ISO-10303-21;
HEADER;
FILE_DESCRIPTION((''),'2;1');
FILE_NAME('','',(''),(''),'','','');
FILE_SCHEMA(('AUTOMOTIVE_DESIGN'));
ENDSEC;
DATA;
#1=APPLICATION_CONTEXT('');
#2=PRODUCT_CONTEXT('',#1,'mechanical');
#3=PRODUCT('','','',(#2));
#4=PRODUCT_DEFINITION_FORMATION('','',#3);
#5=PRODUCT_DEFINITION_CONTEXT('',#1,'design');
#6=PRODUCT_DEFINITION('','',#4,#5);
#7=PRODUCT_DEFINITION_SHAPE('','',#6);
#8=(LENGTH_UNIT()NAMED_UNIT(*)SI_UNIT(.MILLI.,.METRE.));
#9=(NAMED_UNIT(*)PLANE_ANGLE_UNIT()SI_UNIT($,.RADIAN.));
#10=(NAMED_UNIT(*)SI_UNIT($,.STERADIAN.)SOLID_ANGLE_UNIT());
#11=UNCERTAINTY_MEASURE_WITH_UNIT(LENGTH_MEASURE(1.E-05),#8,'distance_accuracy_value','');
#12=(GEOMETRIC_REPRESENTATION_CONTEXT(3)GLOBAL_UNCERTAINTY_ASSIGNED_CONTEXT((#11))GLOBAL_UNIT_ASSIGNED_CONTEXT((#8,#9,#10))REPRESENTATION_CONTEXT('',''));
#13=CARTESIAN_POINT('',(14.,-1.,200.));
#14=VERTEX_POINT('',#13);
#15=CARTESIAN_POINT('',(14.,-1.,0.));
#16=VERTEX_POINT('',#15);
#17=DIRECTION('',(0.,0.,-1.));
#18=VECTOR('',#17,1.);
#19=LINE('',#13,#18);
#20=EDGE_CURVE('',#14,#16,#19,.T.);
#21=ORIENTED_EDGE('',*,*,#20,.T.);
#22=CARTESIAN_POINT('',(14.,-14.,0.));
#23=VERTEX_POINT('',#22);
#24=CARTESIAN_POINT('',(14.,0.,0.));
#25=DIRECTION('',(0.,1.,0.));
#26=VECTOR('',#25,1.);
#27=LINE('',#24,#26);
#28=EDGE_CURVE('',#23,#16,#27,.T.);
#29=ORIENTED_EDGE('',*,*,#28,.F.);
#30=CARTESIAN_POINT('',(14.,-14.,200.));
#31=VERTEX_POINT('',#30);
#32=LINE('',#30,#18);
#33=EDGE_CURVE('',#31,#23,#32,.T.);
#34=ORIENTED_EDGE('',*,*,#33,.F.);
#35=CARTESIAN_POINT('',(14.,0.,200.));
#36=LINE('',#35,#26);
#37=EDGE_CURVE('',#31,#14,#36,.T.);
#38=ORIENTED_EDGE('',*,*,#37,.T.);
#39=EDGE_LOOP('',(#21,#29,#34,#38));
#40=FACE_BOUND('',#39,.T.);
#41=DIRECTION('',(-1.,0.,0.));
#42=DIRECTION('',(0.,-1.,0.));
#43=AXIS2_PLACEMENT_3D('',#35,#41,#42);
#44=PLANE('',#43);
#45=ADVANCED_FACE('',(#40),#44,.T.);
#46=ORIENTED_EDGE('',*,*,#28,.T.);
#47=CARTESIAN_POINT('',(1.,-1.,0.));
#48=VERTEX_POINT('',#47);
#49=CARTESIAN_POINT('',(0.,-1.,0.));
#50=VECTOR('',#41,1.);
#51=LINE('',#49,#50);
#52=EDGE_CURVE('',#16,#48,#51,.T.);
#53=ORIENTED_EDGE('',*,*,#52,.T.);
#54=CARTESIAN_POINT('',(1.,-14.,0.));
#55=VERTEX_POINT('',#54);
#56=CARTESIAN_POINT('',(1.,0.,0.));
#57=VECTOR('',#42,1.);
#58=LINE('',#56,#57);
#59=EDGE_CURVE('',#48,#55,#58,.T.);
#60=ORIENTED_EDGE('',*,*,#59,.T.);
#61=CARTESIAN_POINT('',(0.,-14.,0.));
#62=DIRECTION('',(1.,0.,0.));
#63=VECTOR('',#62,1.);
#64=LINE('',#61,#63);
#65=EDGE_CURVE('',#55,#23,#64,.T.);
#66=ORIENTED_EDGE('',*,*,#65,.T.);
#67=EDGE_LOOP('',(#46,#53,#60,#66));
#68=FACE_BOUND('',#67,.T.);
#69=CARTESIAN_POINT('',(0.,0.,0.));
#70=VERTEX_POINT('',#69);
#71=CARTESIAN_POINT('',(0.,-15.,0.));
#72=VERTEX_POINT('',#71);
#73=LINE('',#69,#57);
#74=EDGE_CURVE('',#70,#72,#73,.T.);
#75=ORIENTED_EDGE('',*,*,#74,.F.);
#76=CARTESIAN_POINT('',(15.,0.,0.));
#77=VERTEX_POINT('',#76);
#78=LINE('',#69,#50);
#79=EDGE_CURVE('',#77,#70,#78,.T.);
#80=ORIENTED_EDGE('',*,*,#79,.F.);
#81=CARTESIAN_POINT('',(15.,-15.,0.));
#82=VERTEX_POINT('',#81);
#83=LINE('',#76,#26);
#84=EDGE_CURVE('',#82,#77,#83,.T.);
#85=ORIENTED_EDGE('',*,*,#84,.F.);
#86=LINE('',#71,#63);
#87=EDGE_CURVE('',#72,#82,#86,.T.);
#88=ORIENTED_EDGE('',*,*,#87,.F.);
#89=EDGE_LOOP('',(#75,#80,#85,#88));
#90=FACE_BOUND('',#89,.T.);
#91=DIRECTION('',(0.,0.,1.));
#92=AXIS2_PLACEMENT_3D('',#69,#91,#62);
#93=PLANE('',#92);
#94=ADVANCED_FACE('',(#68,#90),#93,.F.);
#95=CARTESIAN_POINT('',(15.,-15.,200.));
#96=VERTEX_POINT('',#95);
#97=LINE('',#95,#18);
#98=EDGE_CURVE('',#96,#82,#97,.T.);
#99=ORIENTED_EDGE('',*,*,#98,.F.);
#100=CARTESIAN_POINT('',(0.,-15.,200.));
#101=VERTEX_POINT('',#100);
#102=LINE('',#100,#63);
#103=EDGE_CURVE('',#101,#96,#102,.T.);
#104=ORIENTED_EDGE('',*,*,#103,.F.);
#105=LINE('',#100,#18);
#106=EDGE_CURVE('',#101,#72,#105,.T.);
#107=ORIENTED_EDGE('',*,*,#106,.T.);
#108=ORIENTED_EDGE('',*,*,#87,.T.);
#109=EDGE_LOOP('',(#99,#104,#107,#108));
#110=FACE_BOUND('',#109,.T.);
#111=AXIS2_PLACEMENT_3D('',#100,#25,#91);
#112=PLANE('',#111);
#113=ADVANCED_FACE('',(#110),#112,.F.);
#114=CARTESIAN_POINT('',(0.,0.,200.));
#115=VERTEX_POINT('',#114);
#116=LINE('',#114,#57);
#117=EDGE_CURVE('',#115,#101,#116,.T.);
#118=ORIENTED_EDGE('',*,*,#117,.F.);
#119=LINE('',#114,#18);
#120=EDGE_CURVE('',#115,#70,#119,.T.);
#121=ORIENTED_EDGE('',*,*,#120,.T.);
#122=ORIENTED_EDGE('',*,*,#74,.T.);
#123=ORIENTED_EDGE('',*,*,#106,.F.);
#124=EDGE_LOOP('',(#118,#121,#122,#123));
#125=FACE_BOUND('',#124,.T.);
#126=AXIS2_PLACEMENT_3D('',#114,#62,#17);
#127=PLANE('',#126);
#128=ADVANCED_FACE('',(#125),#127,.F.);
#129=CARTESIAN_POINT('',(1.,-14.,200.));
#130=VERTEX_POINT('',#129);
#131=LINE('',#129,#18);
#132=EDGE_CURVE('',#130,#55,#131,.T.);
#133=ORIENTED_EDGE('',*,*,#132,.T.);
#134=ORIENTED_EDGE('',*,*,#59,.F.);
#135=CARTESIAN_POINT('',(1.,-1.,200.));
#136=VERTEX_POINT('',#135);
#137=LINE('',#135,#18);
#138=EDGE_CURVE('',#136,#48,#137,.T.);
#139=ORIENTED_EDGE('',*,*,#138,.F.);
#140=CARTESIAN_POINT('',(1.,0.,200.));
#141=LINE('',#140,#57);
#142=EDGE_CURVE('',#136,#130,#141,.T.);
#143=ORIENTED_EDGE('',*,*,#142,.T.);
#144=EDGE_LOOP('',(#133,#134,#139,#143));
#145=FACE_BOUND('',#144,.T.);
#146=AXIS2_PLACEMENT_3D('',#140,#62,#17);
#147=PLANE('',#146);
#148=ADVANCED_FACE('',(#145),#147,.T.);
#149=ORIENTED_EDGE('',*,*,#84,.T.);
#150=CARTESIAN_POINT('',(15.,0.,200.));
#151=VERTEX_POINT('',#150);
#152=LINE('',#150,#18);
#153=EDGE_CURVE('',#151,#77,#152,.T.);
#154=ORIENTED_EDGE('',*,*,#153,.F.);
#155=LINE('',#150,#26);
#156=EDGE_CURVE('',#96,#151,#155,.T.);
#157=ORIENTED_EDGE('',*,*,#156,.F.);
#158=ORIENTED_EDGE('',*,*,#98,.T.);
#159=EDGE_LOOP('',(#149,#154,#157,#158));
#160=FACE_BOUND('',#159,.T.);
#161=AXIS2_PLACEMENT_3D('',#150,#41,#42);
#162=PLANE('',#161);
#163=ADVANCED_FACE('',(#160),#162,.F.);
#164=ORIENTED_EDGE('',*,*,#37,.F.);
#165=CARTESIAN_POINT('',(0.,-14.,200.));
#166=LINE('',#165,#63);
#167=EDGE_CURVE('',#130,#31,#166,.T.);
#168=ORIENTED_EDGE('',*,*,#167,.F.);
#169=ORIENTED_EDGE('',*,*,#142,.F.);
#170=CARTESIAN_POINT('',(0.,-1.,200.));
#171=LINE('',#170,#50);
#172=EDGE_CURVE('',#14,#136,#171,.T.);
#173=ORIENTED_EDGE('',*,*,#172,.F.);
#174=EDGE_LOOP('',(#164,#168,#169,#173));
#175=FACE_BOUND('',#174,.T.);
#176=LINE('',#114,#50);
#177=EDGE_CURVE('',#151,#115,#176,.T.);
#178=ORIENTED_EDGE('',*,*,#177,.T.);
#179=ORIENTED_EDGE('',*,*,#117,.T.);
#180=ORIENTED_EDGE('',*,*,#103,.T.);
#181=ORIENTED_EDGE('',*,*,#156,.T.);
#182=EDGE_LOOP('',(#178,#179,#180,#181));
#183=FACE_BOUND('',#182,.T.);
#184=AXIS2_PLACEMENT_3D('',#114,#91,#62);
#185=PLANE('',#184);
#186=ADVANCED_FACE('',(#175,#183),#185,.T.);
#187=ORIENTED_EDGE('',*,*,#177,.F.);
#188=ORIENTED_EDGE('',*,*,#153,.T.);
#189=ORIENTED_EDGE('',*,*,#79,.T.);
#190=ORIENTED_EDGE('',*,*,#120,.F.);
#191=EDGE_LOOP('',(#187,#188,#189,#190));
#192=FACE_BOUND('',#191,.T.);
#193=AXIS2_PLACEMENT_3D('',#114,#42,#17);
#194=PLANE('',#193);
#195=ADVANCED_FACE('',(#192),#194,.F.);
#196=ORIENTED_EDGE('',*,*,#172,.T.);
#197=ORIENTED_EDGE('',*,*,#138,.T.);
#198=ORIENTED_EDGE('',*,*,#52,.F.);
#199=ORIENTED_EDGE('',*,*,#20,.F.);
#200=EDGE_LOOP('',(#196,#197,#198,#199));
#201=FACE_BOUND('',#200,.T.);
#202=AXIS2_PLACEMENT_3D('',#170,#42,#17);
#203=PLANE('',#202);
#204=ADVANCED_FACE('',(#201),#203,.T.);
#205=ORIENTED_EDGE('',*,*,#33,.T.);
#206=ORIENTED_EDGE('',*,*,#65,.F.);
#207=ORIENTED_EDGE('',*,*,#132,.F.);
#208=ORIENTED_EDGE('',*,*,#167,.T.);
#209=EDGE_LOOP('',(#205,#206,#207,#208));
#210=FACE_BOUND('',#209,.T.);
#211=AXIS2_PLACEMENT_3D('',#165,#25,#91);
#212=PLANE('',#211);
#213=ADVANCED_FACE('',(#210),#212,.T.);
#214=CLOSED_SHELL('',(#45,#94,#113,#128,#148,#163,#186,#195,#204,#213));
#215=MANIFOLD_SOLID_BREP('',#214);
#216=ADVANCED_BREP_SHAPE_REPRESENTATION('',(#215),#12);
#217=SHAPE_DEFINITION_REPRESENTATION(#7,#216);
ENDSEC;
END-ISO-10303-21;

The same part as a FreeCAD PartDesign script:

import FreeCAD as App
import Part
import Sketcher
Q = App.Units.Quantity


def add_polygon(sketch, points):
    """Adds a closed chain of lines whose ends are joined by coincident constraints."""
    first, n = sketch.GeometryCount, len(points)
    for a, b in zip(points, points[1:] + points[:1]):
        sketch.addGeometry(Part.LineSegment(App.Vector(*a, 0), App.Vector(*b, 0)), False)
    for i in range(n):
        sketch.addConstraint(Sketcher.Constraint("Coincident", first + i, 2, first + (i + 1) % n, 1))

doc = App.newDocument("Part")
body = doc.addObject("PartDesign::Body", "Body")

sketch1 = body.newObject("Sketcher::SketchObject", "Sketch")
sketch1.AttachmentSupport = (doc.getObject("XY_Plane"), [""])
sketch1.MapMode = "FlatFace"
add_polygon(sketch1, [(0, 0), (0, -15), (15, -15), (15, 0)])
add_polygon(sketch1, [(14, -14), (1, -14), (1, -1), (14, -1)])
sketch1.addConstraint(Sketcher.Constraint("Vertical", 0))
sketch1.addConstraint(Sketcher.Constraint("Horizontal", 1))
sketch1.addConstraint(Sketcher.Constraint("Vertical", 2))
sketch1.addConstraint(Sketcher.Constraint("Horizontal", 3))
sketch1.addConstraint(Sketcher.Constraint("Horizontal", 4))
sketch1.addConstraint(Sketcher.Constraint("Vertical", 5))
sketch1.addConstraint(Sketcher.Constraint("Horizontal", 6))
sketch1.addConstraint(Sketcher.Constraint("Vertical", 7))
sketch1.addConstraint(Sketcher.Constraint("Coincident", 3, 2, -1, 1))
sketch1.addConstraint(Sketcher.Constraint("Equal", 3, 0))
sketch1.addConstraint(Sketcher.Constraint("Equal", 6, 5))
sketch1.addConstraint(Sketcher.Constraint("DistanceX", 1, 1, 1, 2, Q("15 mm")))
sketch1.addConstraint(Sketcher.Constraint("DistanceX", 4, 2, 4, 1, Q("13 mm")))
sketch1.addConstraint(Sketcher.Constraint("DistanceX", -1, 1, 4, 2, Q("1 mm")))
sketch1.addConstraint(Sketcher.Constraint("DistanceY", 4, 2, -1, 1, Q("14 mm")))
pad1 = body.newObject("PartDesign::Pad", "Pad")
pad1.Profile = sketch1
pad1.Length = 200

doc.recompute()
